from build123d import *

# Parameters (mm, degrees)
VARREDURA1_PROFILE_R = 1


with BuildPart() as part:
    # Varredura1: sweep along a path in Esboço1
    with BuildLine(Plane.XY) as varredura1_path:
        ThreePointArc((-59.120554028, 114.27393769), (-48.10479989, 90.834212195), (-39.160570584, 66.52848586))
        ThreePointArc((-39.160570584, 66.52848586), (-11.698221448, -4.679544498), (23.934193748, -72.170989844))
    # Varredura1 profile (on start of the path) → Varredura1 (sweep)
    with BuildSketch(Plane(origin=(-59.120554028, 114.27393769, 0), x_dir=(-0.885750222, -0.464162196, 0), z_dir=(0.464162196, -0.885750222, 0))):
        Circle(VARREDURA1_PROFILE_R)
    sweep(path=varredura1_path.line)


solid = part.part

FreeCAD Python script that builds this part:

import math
import FreeCAD as App
import Part
import Sketcher

V = App.Vector
Q = App.Units.Quantity

doc = App.newDocument("Part")
body = doc.addObject("PartDesign::Body", "Body")

# Sketch on an angled plane
sketch1 = body.newObject("Sketcher::SketchObject", "Sketch")
sketch1.Placement = App.Placement(V(-59.120554, 114.273938, 0), App.Rotation(V(-0.885750222, -0.464162196, 0), V(0, 0, -1), V(0.464162196, -0.885750222, 0), "ZXY"))
sketch1.addGeometry(Part.Circle(V(0, 0, 0), V(0, 0, 1), 1), False)
sketch1.addConstraint(Sketcher.Constraint("Coincident", 0, 3, -1, 1))
sketch1.addConstraint(Sketcher.Constraint("Diameter", 0, Q("2 mm")))

# Sketch on XY plane
sketch2 = body.newObject("Sketcher::SketchObject", "Sketch001")
sketch2.AttachmentSupport = (doc.getObject("XY_Plane"), [""])
sketch2.MapMode = "FlatFace"
sketch2.addGeometry(Part.ArcOfCircle(Part.Circle(V(-323.737434, -24.393995, 0), V(0, 0, 1), 298.748872), math.radians(17.718713), math.radians(27.656014)), False)
sketch2.addGeometry(Part.ArcOfCircle(Part.Circle(V(579.00369, 264.032343, 0), V(0, 0, 1), 648.949017), math.radians(-162.281287), math.radians(-148.796881)), False)
sketch2.addConstraint(Sketcher.Constraint("Tangent", 0, 1, 1, 1))
sketch2.addConstraint(Sketcher.Constraint("Radius", 0, Q("298.748872 mm")))
sketch2.addConstraint(Sketcher.Constraint("Radius", 1, Q("648.949017 mm")))
sketch2.addConstraint(Sketcher.Constraint("DistanceX", -1, 1, 1, 3, Q("579.00369 mm")))
sketch2.addConstraint(Sketcher.Constraint("DistanceX", 0, 1, -1, 1, Q("39.160571 mm")))
sketch2.addConstraint(Sketcher.Constraint("DistanceY", 1, 2, -1, 1, Q("72.17099 mm")))
sketch2.addConstraint(Sketcher.Constraint("DistanceY", 0, 1, 0, 2, Q("47.745452 mm")))
sketch2.addConstraint(Sketcher.Constraint("DistanceY", 0, 3, -1, 1, Q("24.393995 mm")))
doc.recompute()

additivepipe = body.newObject("PartDesign::AdditivePipe", "AdditivePipe")
additivepipe.Profile = sketch1
additivepipe.Spine = (sketch2, ["Edge1", "Edge2"])

doc.recompute()
